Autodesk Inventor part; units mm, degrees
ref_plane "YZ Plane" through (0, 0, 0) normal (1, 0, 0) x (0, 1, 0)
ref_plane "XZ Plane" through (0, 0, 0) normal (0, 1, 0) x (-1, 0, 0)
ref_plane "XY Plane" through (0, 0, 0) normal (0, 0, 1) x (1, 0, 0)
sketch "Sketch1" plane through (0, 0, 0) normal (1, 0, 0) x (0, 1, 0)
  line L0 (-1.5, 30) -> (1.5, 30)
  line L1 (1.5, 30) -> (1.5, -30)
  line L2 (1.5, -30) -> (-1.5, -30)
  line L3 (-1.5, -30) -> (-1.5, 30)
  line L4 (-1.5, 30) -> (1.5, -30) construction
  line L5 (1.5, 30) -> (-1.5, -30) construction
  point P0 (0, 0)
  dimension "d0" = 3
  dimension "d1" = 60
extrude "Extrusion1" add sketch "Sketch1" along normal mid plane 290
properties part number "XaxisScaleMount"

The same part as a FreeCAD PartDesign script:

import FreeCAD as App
import Part
import Sketcher
from FreeCAD import Vector
Q = App.Units.Quantity


def add_polygon(sketch, points):
    """Adds a closed chain of lines whose ends are joined by coincident constraints."""
    first, n = sketch.GeometryCount, len(points)
    for a, b in zip(points, points[1:] + points[:1]):
        sketch.addGeometry(Part.LineSegment(App.Vector(*a, 0), App.Vector(*b, 0)), False)
    for i in range(n):
        sketch.addConstraint(Sketcher.Constraint("Coincident", first + i, 2, first + (i + 1) % n, 1))

doc = App.newDocument("Part")
body = doc.addObject("PartDesign::Body", "Body")

sketch1 = doc.addObject("Sketcher::SketchObject", "Sketch")
body.addObject(sketch1)
sketch1.AttachmentSupport = (doc.YZ_Plane, [""])
sketch1.MapMode = "FlatFace"
add_polygon(sketch1, [(1.5, 30), (-1.5, 30), (-1.5, -30), (1.5, -30)])
sketch1.addConstraint(Sketcher.Constraint("Horizontal", 0))
sketch1.addConstraint(Sketcher.Constraint("Vertical", 1))
sketch1.addConstraint(Sketcher.Constraint("Horizontal", 2))
sketch1.addConstraint(Sketcher.Constraint("Vertical", 3))
sketch1.addConstraint(Sketcher.Constraint("Symmetric", 0, 2, 2, 2, -1, 1))
sketch1.addConstraint(Sketcher.Constraint("DistanceX", 0, 2, 0, 1, Q("3 mm")))
sketch1.addConstraint(Sketcher.Constraint("DistanceY", 1, 2, 1, 1, Q("60 mm")))
pad1 = doc.addObject("PartDesign::Pad", "Pad")
body.addObject(pad1)
pad1.Profile = sketch1
pad1.Length = 290
pad1.Midplane = True

doc.recompute()
